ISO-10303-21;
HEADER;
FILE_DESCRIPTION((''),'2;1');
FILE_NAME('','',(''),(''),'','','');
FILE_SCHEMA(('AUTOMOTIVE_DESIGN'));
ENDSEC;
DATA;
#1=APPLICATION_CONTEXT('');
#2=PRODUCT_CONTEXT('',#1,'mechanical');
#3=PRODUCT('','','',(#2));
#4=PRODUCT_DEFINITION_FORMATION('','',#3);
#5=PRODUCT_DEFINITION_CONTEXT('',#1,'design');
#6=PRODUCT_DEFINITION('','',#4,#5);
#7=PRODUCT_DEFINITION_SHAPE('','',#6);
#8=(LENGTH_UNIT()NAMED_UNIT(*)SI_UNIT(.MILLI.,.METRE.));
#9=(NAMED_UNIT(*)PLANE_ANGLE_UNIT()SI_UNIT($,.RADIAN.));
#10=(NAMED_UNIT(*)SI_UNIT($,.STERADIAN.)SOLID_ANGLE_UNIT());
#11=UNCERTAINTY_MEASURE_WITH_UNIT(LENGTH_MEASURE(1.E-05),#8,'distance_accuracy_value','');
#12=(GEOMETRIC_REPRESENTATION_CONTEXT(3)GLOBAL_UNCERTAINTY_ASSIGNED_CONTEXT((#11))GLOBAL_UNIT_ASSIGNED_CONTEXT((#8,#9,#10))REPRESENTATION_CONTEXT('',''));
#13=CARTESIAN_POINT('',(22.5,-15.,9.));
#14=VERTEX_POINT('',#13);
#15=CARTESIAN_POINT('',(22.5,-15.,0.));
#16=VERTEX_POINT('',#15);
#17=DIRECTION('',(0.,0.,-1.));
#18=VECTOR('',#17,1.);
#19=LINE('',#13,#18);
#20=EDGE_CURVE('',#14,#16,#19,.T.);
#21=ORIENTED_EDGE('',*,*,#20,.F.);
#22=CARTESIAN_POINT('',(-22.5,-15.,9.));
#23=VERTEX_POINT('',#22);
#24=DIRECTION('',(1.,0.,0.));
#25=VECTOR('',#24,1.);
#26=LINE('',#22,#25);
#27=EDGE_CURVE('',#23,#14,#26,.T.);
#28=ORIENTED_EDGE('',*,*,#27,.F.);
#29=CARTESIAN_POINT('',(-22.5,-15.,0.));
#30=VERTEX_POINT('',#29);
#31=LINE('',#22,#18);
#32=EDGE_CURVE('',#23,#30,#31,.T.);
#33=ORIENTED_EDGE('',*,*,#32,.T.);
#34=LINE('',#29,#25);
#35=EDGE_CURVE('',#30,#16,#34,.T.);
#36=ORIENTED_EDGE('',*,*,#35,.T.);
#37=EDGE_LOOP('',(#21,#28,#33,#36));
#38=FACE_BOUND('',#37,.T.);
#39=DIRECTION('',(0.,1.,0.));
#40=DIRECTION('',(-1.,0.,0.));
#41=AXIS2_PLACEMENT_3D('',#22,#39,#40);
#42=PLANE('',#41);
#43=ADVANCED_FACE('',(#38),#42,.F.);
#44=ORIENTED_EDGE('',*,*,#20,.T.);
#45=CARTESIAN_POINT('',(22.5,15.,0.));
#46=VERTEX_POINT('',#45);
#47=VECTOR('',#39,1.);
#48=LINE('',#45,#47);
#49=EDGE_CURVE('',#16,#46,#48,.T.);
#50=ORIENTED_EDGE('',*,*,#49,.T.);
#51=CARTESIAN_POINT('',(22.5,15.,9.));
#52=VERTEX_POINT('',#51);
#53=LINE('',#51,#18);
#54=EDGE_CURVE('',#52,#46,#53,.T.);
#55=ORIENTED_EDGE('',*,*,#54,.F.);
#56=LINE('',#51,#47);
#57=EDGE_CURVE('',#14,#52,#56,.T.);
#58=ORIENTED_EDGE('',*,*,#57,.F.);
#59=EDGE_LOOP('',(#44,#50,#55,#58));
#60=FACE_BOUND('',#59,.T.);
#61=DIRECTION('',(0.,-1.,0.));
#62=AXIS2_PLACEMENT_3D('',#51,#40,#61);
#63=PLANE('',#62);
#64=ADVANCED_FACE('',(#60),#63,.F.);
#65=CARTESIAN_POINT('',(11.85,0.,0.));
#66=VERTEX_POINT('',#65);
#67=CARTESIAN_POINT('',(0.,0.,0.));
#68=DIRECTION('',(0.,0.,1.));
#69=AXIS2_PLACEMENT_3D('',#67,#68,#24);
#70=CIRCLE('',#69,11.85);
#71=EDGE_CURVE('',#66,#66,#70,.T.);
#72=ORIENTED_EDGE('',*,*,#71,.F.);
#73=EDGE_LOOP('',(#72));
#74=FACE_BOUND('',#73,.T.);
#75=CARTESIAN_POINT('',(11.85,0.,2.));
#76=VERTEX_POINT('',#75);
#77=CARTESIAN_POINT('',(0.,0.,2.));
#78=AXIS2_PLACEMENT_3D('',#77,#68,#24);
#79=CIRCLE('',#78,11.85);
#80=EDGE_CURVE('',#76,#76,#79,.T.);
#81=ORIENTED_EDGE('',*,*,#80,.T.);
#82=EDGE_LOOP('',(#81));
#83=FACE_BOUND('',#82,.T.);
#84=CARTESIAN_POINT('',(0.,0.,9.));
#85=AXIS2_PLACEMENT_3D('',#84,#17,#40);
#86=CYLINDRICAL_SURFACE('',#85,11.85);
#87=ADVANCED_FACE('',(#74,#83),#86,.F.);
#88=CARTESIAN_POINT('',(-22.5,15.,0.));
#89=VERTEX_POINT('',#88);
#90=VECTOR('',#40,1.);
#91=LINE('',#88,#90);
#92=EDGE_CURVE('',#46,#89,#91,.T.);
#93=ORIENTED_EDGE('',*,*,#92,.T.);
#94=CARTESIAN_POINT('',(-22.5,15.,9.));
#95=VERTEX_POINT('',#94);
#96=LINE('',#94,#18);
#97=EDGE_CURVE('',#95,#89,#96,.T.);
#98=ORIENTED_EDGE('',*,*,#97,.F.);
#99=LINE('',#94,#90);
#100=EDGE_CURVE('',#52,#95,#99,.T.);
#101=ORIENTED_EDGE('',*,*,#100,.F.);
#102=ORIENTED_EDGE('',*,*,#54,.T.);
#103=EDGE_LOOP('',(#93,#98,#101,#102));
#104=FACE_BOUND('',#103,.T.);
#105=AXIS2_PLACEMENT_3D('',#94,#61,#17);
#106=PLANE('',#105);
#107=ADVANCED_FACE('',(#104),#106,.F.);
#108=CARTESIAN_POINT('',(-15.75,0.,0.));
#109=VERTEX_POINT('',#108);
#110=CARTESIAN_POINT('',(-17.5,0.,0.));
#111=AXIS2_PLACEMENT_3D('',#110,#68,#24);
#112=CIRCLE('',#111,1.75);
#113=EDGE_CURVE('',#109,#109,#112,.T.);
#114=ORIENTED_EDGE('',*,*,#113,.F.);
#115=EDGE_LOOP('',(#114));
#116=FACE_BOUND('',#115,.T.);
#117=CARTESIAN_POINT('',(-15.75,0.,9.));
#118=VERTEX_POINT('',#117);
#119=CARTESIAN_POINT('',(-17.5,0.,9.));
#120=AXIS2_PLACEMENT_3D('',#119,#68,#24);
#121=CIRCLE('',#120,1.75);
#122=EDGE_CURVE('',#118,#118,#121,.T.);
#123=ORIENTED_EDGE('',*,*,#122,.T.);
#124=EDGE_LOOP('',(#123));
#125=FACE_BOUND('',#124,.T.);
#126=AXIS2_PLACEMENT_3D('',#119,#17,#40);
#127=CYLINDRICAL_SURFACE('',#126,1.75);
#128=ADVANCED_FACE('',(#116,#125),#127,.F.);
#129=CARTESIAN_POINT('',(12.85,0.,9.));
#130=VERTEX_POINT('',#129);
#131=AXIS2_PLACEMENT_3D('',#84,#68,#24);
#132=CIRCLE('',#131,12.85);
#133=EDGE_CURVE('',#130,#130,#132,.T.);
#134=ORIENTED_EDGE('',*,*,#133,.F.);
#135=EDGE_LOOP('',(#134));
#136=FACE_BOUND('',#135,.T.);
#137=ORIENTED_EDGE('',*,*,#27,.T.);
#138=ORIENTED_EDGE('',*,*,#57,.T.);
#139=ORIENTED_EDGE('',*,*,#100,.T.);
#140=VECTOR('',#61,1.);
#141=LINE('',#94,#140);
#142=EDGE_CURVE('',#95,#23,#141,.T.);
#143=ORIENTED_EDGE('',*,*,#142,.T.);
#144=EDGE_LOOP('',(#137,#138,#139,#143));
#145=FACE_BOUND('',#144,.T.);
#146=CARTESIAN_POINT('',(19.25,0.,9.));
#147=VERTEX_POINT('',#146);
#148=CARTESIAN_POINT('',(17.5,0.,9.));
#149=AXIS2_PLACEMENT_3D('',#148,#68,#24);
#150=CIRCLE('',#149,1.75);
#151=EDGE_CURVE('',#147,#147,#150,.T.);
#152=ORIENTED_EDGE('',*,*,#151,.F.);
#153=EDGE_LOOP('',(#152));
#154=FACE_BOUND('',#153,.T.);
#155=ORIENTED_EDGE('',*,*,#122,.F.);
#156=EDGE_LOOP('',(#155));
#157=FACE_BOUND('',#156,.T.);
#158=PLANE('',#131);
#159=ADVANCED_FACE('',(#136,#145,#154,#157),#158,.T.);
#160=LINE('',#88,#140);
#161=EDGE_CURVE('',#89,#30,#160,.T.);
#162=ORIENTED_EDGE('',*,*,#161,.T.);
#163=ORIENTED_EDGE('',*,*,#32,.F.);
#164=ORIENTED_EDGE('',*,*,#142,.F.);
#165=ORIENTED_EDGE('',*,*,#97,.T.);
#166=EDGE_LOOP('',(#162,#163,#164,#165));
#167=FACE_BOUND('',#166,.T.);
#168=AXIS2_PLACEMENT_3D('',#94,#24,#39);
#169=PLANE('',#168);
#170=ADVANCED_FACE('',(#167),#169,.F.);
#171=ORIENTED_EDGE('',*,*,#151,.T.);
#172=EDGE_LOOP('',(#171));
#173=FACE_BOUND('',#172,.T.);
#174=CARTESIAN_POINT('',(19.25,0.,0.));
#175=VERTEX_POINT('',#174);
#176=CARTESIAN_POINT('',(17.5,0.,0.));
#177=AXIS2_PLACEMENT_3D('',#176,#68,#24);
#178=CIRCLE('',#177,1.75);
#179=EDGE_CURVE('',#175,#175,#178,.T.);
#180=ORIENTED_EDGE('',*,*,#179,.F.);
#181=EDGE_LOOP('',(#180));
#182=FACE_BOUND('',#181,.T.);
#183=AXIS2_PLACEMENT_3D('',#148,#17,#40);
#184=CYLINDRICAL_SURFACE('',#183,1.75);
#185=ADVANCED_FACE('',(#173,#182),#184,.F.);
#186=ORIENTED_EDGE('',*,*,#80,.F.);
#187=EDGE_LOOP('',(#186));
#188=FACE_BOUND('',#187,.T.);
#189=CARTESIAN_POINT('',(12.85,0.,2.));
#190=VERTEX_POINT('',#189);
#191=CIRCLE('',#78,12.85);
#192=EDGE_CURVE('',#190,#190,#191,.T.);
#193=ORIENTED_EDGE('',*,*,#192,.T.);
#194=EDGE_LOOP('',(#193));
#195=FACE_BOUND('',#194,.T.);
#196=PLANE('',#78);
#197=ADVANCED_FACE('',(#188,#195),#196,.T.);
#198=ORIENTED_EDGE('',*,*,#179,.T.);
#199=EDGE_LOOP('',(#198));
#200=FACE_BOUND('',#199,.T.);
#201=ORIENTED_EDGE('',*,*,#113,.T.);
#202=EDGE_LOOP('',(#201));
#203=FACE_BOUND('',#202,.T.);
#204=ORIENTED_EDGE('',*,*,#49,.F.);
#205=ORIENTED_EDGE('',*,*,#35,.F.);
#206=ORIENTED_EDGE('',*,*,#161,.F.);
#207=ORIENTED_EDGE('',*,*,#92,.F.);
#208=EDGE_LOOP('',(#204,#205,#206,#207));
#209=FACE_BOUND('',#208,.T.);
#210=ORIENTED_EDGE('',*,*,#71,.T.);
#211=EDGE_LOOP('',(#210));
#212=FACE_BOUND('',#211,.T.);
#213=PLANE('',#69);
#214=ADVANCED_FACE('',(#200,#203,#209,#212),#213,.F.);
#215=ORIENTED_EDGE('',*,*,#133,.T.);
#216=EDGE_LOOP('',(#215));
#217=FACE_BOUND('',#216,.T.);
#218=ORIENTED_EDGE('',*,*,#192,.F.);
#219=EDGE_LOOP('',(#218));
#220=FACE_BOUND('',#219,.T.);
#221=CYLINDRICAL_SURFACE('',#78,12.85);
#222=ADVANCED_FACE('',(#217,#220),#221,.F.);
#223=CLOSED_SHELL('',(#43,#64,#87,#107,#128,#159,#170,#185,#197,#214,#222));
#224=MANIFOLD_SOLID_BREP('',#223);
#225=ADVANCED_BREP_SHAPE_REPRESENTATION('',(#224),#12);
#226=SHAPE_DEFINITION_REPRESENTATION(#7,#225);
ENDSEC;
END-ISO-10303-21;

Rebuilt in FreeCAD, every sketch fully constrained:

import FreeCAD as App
import Part
import Sketcher

doc = App.newDocument("Part")
body = doc.addObject("PartDesign::Body", "Body")

# Sketch on XY plane
sketch1 = doc.addObject("Sketcher::SketchObject", "Sketch")
body.addObject(sketch1)
sketch1.AttachmentSupport = (doc.XY_Plane, [""])
sketch1.MapMode = "FlatFace"
sketch1.addGeometry([
    Part.LineSegment(App.Vector(-22.5, 15, 0), App.Vector(-22.5, -15, 0)),  # 0
    Part.LineSegment(App.Vector(-22.5, -15, 0), App.Vector(22.5, -15, 0)),  # 1
    Part.LineSegment(App.Vector(22.5, -15, 0), App.Vector(22.5, 15, 0)),  # 2
    Part.LineSegment(App.Vector(22.5, 15, 0), App.Vector(-22.5, 15, 0)),  # 3
    Part.Circle(App.Vector(-17.5, 0, 0), App.Vector(0, 0, 1), 1.8),  # 4
    Part.Circle(App.Vector(0, 0, 0), App.Vector(0, 0, 1), 11.8),  # 5
    Part.Circle(App.Vector(17.5, 0, 0), App.Vector(0, 0, 1), 1.8),  # 6
], False)
sketch1.addConstraint([
    Sketcher.Constraint("Coincident", 0, 2, 1, 1),
    Sketcher.Constraint("Coincident", 1, 2, 2, 1),
    Sketcher.Constraint("Coincident", 2, 2, 3, 1),
    Sketcher.Constraint("Coincident", 3, 2, 0, 1),
    Sketcher.Constraint("Vertical", 0),
    Sketcher.Constraint("Horizontal", 1),
    Sketcher.Constraint("Vertical", 2),
    Sketcher.Constraint("Horizontal", 3),
    Sketcher.Constraint("Coincident", 5, 3, -1, 1),
    Sketcher.Constraint("Equal", 4, 6),
    Sketcher.Constraint("Symmetric", 4, 3, 6, 3, -1, 1),
    Sketcher.Constraint("Symmetric", 0, 2, 2, 2, -1, 1),
    Sketcher.Constraint("PointOnObject", 4, 3, -1),
    Sketcher.Constraint("Diameter", 4, 3.5),
    Sketcher.Constraint("Diameter", 5, 23.7),
    Sketcher.Constraint("DistanceX", 1, 1, 1, 2, 45.0),
    Sketcher.Constraint("DistanceY", 0, 2, 0, 1, 30.0),
    Sketcher.Constraint("DistanceX", 4, 3, 6, 3, 35.0),
])
pad1 = doc.addObject("PartDesign::Pad", "Pad")
body.addObject(pad1)
pad1.Profile = sketch1
pad1.Length = 9

# Sketch on XY plane
sketch2 = doc.addObject("Sketcher::SketchObject", "Sketch001")
body.addObject(sketch2)
sketch2.AttachmentSupport = (doc.XY_Plane, [""])
sketch2.MapMode = "FlatFace"
sketch2.AttachmentOffset = App.Placement(App.Vector(0, 0, 9), App.Rotation())
sketch2.addGeometry(Part.Circle(App.Vector(0, 0, 0), App.Vector(0, 0, 1), 13), False)
sketch2.addConstraint([
    Sketcher.Constraint("Coincident", 0, 3, -1, 1),
    Sketcher.Constraint("Diameter", 0, 25.7),
])
pocket1 = doc.addObject("PartDesign::Pocket", "Pocket")
body.addObject(pocket1)
pocket1.Profile = sketch2
pocket1.Length = 7

doc.recompute()
